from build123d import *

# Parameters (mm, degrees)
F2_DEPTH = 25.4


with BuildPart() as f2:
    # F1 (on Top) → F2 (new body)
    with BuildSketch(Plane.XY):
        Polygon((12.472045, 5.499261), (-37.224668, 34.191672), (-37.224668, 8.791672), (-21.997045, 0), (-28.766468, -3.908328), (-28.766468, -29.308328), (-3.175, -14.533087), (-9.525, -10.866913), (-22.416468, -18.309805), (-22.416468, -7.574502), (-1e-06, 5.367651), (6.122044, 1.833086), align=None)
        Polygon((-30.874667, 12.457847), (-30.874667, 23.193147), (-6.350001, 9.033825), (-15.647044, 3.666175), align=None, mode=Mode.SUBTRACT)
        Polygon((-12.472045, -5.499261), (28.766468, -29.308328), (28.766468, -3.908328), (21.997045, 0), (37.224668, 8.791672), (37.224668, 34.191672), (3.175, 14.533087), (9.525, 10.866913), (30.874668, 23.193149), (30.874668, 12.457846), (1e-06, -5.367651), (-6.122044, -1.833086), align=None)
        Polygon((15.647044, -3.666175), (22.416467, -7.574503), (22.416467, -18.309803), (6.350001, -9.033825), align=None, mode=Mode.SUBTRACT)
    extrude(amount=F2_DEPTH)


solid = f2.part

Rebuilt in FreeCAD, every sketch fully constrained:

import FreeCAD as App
import Part
import Sketcher
from FreeCAD import Vector
Q = App.Units.Quantity

doc = App.newDocument("Part")
body = doc.addObject("PartDesign::Body", "Body")
body.AllowCompound = True

# Sketch on XY plane
sketch1 = body.newObject("Sketcher::SketchObject", "Sketch")
sketch1.AttachmentSupport = (doc.getObject("XY_Plane"), [""])
sketch1.MapMode = "FlatFace"
sketch1.addGeometry([
    Part.LineSegment(Vector(12.472045, 5.499261, 0), Vector(-37.224668, 34.191672, 0)),  # 0
    Part.LineSegment(Vector(-37.224668, 34.191672, 0), Vector(-37.224668, 8.791672, 0)),  # 1
    Part.LineSegment(Vector(-37.224668, 8.791672, 0), Vector(-21.997045, 0, 0)),  # 2
    Part.LineSegment(Vector(-21.997045, 0, 0), Vector(-28.766468, -3.908328, 0)),  # 3
    Part.LineSegment(Vector(-28.766468, -3.908328, 0), Vector(-28.766468, -29.308328, 0)),  # 4
    Part.LineSegment(Vector(-28.766468, -29.308328, 0), Vector(-3.175, -14.533087, 0)),  # 5
    Part.LineSegment(Vector(-3.175, -14.533087, 0), Vector(-9.525, -10.866913, 0)),  # 6
    Part.LineSegment(Vector(-9.525, -10.866913, 0), Vector(-22.416468, -18.309805, 0)),  # 7
    Part.LineSegment(Vector(-22.416468, -18.309805, 0), Vector(-22.416468, -7.574502, 0)),  # 8
    Part.LineSegment(Vector(-22.416468, -7.574502, 0), Vector(-0.000001, 5.367651, 0)),  # 9
    Part.LineSegment(Vector(-0.000001, 5.367651, 0), Vector(6.122044, 1.833086, 0)),  # 10
    Part.LineSegment(Vector(6.122044, 1.833086, 0), Vector(12.472045, 5.499261, 0)),  # 11
    Part.LineSegment(Vector(-15.647044, 3.666175, 0), Vector(-30.874667, 12.457847, 0)),  # 12
    Part.LineSegment(Vector(-30.874667, 12.457847, 0), Vector(-30.874667, 23.193147, 0)),  # 13
    Part.LineSegment(Vector(-30.874667, 23.193147, 0), Vector(-6.350001, 9.033825, 0)),  # 14
    Part.LineSegment(Vector(-6.350001, 9.033825, 0), Vector(-15.647044, 3.666175, 0)),  # 15
    Part.LineSegment(Vector(-12.472045, -5.499261, 0), Vector(28.766468, -29.308328, 0)),  # 16
    Part.LineSegment(Vector(28.766468, -29.308328, 0), Vector(28.766468, -3.908328, 0)),  # 17
    Part.LineSegment(Vector(28.766468, -3.908328, 0), Vector(21.997045, 0, 0)),  # 18
    Part.LineSegment(Vector(21.997045, 0, 0), Vector(37.224668, 8.791672, 0)),  # 19
    Part.LineSegment(Vector(37.224668, 8.791672, 0), Vector(37.224668, 34.191672, 0)),  # 20
    Part.LineSegment(Vector(37.224668, 34.191672, 0), Vector(3.175, 14.533087, 0)),  # 21
    Part.LineSegment(Vector(3.175, 14.533087, 0), Vector(9.525, 10.866913, 0)),  # 22
    Part.LineSegment(Vector(9.525, 10.866913, 0), Vector(30.874668, 23.193149, 0)),  # 23
    Part.LineSegment(Vector(30.874668, 23.193149, 0), Vector(30.874668, 12.457846, 0)),  # 24
    Part.LineSegment(Vector(30.874668, 12.457846, 0), Vector(0.000001, -5.367651, 0)),  # 25
    Part.LineSegment(Vector(0.000001, -5.367651, 0), Vector(-6.122044, -1.833086, 0)),  # 26
    Part.LineSegment(Vector(-6.122044, -1.833086, 0), Vector(-12.472045, -5.499261, 0)),  # 27
    Part.LineSegment(Vector(6.350001, -9.033825, 0), Vector(15.647044, -3.666175, 0)),  # 28
    Part.LineSegment(Vector(15.647044, -3.666175, 0), Vector(22.416467, -7.574503, 0)),  # 29
    Part.LineSegment(Vector(22.416467, -7.574503, 0), Vector(22.416467, -18.309803, 0)),  # 30
    Part.LineSegment(Vector(22.416467, -18.309803, 0), Vector(6.350001, -9.033825, 0)),  # 31
], False)
sketch1.addConstraint([
    Sketcher.Constraint("Coincident", 0, 2, 1, 1),
    Sketcher.Constraint("Coincident", 1, 2, 2, 1),
    Sketcher.Constraint("Coincident", 2, 2, 3, 1),
    Sketcher.Constraint("Coincident", 3, 2, 4, 1),
    Sketcher.Constraint("Coincident", 4, 2, 5, 1),
    Sketcher.Constraint("Coincident", 5, 2, 6, 1),
    Sketcher.Constraint("Coincident", 6, 2, 7, 1),
    Sketcher.Constraint("Coincident", 7, 2, 8, 1),
    Sketcher.Constraint("Coincident", 8, 2, 9, 1),
    Sketcher.Constraint("Coincident", 9, 2, 10, 1),
    Sketcher.Constraint("Coincident", 10, 2, 11, 1),
    Sketcher.Constraint("Coincident", 11, 2, 0, 1),
    Sketcher.Constraint("Coincident", 12, 2, 13, 1),
    Sketcher.Constraint("Coincident", 13, 2, 14, 1),
    Sketcher.Constraint("Coincident", 14, 2, 15, 1),
    Sketcher.Constraint("Coincident", 15, 2, 12, 1),
    Sketcher.Constraint("Coincident", 16, 2, 17, 1),
    Sketcher.Constraint("Coincident", 17, 2, 18, 1),
    Sketcher.Constraint("Coincident", 18, 2, 19, 1),
    Sketcher.Constraint("Coincident", 19, 2, 20, 1),
    Sketcher.Constraint("Coincident", 20, 2, 21, 1),
    Sketcher.Constraint("Coincident", 21, 2, 22, 1),
    Sketcher.Constraint("Coincident", 22, 2, 23, 1),
    Sketcher.Constraint("Coincident", 23, 2, 24, 1),
    Sketcher.Constraint("Coincident", 24, 2, 25, 1),
    Sketcher.Constraint("Coincident", 25, 2, 26, 1),
    Sketcher.Constraint("Coincident", 26, 2, 27, 1),
    Sketcher.Constraint("Coincident", 27, 2, 16, 1),
    Sketcher.Constraint("Coincident", 28, 2, 29, 1),
    Sketcher.Constraint("Coincident", 29, 2, 30, 1),
    Sketcher.Constraint("Coincident", 30, 2, 31, 1),
    Sketcher.Constraint("Coincident", 31, 2, 28, 1),
    Sketcher.Constraint("Vertical", 1),
    Sketcher.Constraint("Vertical", 4),
    Sketcher.Constraint("Vertical", 8),
    Sketcher.Constraint("Vertical", 13),
    Sketcher.Constraint("Vertical", 17),
    Sketcher.Constraint("Vertical", 20),
    Sketcher.Constraint("Vertical", 24),
    Sketcher.Constraint("Vertical", 30),
    Sketcher.Constraint("Symmetric", 2, 2, 18, 2, -1, 1),
    Sketcher.Constraint("Symmetric", 5, 2, 21, 2, -1, 1),
    Sketcher.Constraint("Symmetric", 6, 2, 22, 2, -1, 1),
    Sketcher.Constraint("Symmetric", 9, 2, 25, 2, -1, 1),
    Sketcher.Constraint("Symmetric", 10, 2, 26, 2, -1, 1),
    Sketcher.Constraint("Symmetric", 11, 2, 27, 2, -1, 1),
    Sketcher.Constraint("Symmetric", 15, 2, 28, 2, -1, 1),
    Sketcher.Constraint("Symmetric", 14, 2, 31, 2, -1, 1),
    Sketcher.Constraint("Symmetric", 4, 2, 16, 2, -2),
    Sketcher.Constraint("Symmetric", 1, 2, 19, 2, -2),
    Sketcher.Constraint("Symmetric", 13, 2, 23, 2, -2),
    Sketcher.Constraint("Symmetric", 8, 2, 29, 2, -2),
    Sketcher.Constraint("PointOnObject", 2, 2, -1),
    Sketcher.Constraint("PointOnObject", 9, 2, -2),
    Sketcher.Constraint("Parallel", 0, 2),
    Sketcher.Constraint("Parallel", 3, 5),
    Sketcher.Constraint("Parallel", 2, 6),
    Sketcher.Constraint("Parallel", 5, 7),
    Sketcher.Constraint("Parallel", 7, 9),
    Sketcher.Constraint("Parallel", 6, 10),
    Sketcher.Constraint("Parallel", 9, 11),
    Sketcher.Constraint("Parallel", 10, 12),
    Sketcher.Constraint("Parallel", 12, 14),
    Sketcher.Constraint("Parallel", 11, 15),
    Sketcher.Constraint("Parallel", 14, 16),
    Sketcher.Constraint("Parallel", 16, 18),
    Sketcher.Constraint("Parallel", 15, 19),
    Sketcher.Constraint("Parallel", 19, 21),
    Sketcher.Constraint("Parallel", 21, 23),
    Sketcher.Constraint("Parallel", 23, 25),
    Sketcher.Constraint("Parallel", 26, 29),
    Sketcher.Constraint("Parallel", 29, 31),
    Sketcher.Constraint("Equal", 6, 11),
    Sketcher.Constraint("Equal", 2, 12),
    Sketcher.Constraint("Equal", 18, 29),
    Sketcher.Constraint("DistanceY", 1, 2, 1, 1, Q("1 in")),
    Sketcher.Constraint("Angle", 0, Q("150 deg")),
    Sketcher.Constraint("DistanceY", 3, 2, 1, 2, Q("0.5 in")),
    Sketcher.Constraint("DistanceY", 6, 2, 10, 2, Q("0.5 in")),
    Sketcher.Constraint("DistanceY", 10, 2, 21, 2, Q("0.5 in")),
    Sketcher.Constraint("DistanceX", 14, 2, -1, 1, Q("0.25 in")),
    Sketcher.Constraint("DistanceX", 6, 2, 5, 2, Q("0.25 in")),
    Sketcher.Constraint("DistanceX", 4, 2, 7, 2, Q("0.25 in")),
    Sketcher.Constraint("DistanceX", 1, 2, 3, 2, Q("0.333 in")),
])
pad1 = body.newObject("PartDesign::Pad", "Pad")
pad1.Profile = sketch1
pad1.Length = Q("1 in")

doc.recompute()
